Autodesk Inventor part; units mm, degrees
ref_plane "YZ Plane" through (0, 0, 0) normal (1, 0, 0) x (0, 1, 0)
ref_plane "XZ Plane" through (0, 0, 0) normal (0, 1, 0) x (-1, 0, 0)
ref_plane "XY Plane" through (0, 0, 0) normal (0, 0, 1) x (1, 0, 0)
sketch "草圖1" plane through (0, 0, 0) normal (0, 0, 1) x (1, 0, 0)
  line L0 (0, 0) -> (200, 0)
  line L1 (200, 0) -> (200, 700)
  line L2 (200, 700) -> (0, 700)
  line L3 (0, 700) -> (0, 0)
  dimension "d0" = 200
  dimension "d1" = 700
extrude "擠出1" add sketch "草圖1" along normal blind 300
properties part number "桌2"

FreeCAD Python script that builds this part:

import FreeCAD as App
import Part
import Sketcher

V = App.Vector
Q = App.Units.Quantity

doc = App.newDocument("Part")
body = doc.addObject("PartDesign::Body", "Body")

# Sketch on XY plane
sketch1 = doc.addObject("Sketcher::SketchObject", "Sketch")
body.addObject(sketch1)
sketch1.AttachmentSupport = (doc.XY_Plane, [""])
sketch1.MapMode = "FlatFace"
sketch1.addGeometry([
    Part.LineSegment(V(0, 700, 0), V(0, 0, 0)),
    Part.LineSegment(V(0, 0, 0), V(200, 0, 0)),
    Part.LineSegment(V(200, 0, 0), V(200, 700, 0)),
    Part.LineSegment(V(200, 700, 0), V(0, 700, 0)),
], False)
sketch1.addConstraint([
    Sketcher.Constraint("Coincident", 0, 2, 1, 1),
    Sketcher.Constraint("Coincident", 1, 2, 2, 1),
    Sketcher.Constraint("Coincident", 2, 2, 3, 1),
    Sketcher.Constraint("Coincident", 3, 2, 0, 1),
    Sketcher.Constraint("Vertical", 0),
    Sketcher.Constraint("Horizontal", 1),
    Sketcher.Constraint("Vertical", 2),
    Sketcher.Constraint("Horizontal", 3),
    Sketcher.Constraint("Coincident", 0, 2, -1, 1),
    Sketcher.Constraint("DistanceX", 1, 1, 1, 2, Q("200 mm")),
    Sketcher.Constraint("DistanceY", 0, 2, 0, 1, Q("700 mm")),
])
pad1 = doc.addObject("PartDesign::Pad", "Pad")
body.addObject(pad1)
pad1.Profile = sketch1
pad1.Length = 300

doc.recompute()
